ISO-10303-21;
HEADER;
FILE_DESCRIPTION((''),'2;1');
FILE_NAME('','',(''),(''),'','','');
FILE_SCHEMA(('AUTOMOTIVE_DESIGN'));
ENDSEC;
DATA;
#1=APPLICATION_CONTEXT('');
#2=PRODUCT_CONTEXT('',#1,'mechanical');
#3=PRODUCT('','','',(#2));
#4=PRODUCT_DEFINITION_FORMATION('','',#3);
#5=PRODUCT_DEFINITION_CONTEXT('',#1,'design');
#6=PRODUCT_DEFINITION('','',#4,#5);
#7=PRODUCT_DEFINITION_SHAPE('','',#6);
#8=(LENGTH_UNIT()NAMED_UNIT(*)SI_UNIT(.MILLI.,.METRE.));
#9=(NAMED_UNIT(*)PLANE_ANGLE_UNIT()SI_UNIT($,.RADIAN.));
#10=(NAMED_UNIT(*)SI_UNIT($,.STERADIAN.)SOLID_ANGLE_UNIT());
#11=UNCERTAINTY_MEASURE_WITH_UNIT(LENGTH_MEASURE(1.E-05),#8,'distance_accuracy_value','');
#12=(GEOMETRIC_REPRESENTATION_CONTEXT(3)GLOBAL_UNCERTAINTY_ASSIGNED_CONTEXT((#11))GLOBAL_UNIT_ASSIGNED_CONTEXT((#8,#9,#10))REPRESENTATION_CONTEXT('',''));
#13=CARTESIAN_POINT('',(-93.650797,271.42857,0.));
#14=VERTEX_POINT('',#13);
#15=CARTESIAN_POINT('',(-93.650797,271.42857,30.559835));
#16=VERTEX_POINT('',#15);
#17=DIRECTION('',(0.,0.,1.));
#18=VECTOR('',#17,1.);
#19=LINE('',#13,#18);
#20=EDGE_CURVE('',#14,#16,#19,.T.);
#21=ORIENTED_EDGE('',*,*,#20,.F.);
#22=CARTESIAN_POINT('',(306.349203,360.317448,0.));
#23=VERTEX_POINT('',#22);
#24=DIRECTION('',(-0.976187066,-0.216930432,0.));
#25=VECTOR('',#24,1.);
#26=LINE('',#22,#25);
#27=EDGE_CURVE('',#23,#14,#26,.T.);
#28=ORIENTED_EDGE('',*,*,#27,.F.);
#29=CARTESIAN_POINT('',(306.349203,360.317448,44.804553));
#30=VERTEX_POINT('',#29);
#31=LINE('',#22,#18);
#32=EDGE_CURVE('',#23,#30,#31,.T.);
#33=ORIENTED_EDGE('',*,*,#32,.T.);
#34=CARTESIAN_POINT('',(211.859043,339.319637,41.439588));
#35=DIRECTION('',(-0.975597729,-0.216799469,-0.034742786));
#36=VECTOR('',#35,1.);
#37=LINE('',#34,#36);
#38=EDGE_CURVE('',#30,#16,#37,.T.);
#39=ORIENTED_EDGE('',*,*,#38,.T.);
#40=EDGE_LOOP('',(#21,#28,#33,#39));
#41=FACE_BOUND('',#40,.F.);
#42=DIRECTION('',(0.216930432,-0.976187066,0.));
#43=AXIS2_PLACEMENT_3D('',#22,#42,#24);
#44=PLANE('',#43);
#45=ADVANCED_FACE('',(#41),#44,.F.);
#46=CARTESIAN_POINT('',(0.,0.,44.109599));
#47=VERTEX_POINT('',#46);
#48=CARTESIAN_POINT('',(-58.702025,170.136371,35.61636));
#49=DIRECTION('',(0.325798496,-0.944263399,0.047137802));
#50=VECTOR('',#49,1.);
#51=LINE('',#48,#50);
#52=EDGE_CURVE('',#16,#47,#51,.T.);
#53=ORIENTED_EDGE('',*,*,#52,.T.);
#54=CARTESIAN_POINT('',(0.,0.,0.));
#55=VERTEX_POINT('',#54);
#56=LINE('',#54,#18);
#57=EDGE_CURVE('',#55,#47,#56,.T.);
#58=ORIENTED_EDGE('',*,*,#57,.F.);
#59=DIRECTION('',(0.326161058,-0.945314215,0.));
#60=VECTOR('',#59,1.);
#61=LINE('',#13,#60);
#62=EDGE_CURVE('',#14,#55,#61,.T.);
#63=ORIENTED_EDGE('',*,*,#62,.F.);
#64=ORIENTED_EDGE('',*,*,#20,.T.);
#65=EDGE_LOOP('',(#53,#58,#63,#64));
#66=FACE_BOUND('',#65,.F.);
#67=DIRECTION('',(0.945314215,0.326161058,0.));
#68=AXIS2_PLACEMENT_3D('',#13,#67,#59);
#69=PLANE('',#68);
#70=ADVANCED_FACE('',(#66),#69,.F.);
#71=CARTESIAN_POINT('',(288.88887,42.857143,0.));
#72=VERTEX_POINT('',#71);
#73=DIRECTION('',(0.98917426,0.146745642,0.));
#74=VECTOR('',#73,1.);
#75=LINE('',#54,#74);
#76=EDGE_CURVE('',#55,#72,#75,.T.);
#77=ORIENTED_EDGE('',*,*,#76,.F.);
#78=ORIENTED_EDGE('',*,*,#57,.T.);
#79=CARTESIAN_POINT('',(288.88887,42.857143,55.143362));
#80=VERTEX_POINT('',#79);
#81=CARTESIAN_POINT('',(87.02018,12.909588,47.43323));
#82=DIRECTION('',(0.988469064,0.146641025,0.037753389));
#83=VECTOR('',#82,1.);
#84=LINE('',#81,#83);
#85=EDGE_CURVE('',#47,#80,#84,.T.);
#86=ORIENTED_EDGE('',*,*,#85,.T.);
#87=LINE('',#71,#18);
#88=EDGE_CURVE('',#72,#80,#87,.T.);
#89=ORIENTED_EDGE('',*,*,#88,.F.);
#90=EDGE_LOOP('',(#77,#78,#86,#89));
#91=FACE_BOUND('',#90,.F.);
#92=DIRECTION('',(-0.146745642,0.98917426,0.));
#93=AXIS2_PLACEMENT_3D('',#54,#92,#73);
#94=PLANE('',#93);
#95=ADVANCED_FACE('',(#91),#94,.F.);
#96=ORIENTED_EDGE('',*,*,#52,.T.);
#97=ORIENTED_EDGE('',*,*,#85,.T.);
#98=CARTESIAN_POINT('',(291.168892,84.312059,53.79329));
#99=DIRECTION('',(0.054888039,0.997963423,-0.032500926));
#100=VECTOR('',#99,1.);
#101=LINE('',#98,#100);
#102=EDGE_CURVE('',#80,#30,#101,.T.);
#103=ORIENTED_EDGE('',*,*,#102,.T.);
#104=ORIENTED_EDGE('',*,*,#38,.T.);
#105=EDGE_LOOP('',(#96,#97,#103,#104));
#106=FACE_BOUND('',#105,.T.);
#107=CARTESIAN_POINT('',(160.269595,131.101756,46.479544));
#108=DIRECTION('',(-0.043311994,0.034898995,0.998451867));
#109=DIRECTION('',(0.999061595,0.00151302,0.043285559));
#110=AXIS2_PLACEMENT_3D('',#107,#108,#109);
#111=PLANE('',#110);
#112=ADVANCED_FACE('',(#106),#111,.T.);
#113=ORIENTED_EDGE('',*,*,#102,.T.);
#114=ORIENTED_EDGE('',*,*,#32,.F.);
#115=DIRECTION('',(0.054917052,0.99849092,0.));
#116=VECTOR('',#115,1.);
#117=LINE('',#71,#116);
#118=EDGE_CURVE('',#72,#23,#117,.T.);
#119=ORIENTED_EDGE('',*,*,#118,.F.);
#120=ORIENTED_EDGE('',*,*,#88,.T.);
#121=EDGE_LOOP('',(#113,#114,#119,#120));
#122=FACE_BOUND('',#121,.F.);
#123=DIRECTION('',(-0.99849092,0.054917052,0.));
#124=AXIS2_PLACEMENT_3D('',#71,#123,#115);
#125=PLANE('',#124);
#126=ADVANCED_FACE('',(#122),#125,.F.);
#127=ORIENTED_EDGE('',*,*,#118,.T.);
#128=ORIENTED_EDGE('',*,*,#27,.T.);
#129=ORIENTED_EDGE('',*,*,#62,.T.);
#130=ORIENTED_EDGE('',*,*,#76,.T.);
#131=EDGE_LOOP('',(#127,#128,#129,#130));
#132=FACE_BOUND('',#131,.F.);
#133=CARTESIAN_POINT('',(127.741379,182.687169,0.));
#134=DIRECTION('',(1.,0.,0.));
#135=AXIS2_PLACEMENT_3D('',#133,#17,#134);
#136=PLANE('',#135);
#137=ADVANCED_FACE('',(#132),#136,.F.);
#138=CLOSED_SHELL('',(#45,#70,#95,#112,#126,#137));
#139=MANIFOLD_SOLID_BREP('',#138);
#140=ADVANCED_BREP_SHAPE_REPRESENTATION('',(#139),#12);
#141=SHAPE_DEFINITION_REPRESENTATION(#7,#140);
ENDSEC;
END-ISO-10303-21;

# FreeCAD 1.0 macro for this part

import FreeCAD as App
import Part
import Sketcher

V = App.Vector


def add_polygon(sketch, points):
    """Adds a closed chain of lines whose ends are joined by coincident constraints."""
    first, n = sketch.GeometryCount, len(points)
    for a, b in zip(points, points[1:] + points[:1]):
        sketch.addGeometry(Part.LineSegment(App.Vector(*a, 0), App.Vector(*b, 0)), False)
    for i in range(n):
        sketch.addConstraint(Sketcher.Constraint("Coincident", first + i, 2, first + (i + 1) % n, 1))

doc = App.newDocument("Part")
body = doc.addObject("PartDesign::Body", "Body")

# Sketch on XY plane
sketch1 = body.newObject("Sketcher::SketchObject", "Sketch")
sketch1.AttachmentSupport = (doc.getObject("XY_Plane"), [""])
sketch1.MapMode = "FlatFace"
add_polygon(sketch1, [(-93.650797, 271.42857), (0, 0), (288.88887, 42.857143), (306.349203, 360.317448)])  # lines 0-3
sketch1.addConstraint([
    Sketcher.Constraint("Coincident", 0, 2, -1, 1),
    Sketcher.Constraint("DistanceX", 3, 2, 2, 2, 400.0),
    Sketcher.Constraint("Distance", 0, 287.130528),
    Sketcher.Constraint("Distance", 3, 409.757529),
    Sketcher.Constraint("DistanceX", -1, 1, 1, 2, 288.88887),
    Sketcher.Constraint("DistanceY", -1, 1, 2, 2, 360.317448),
    Sketcher.Constraint("Distance", 1, 292.050533),
])
pad1 = body.newObject("PartDesign::Pad", "Pad")
pad1.Profile = sketch1
pad1.Length = 60

# Sketch on an angled plane
sketch2 = body.newObject("Sketcher::SketchObject", "Sketch001")
sketch2.Placement = App.Placement(V(-1.90751, 1.53702, 43.973129), App.Rotation(V(0.999061595, 0.00151302, 0.043285559), V(-0.000000055, 0.999389699, -0.034931778), V(-0.043311994, 0.034898995, 0.998451867), "ZXY"))
add_polygon(sketch2, [(-107.941702, 407.368481), (-107.941702, -148.572281), (432.600588, -148.572281), (432.600588, 407.368481)])  # lines 0-3
sketch2.addConstraint([
    Sketcher.Constraint("Vertical", 0),
    Sketcher.Constraint("Horizontal", 1),
    Sketcher.Constraint("Vertical", 2),
    Sketcher.Constraint("Horizontal", 3),
    Sketcher.Constraint("DistanceX", 1, 1, 1, 2, 540.54229),
    Sketcher.Constraint("DistanceY", 0, 2, 0, 1, 555.940761),
    Sketcher.Constraint("DistanceX", 0, 2, -1, 1, 107.941702),
    Sketcher.Constraint("DistanceY", 0, 2, -1, 1, 148.572281),
])
pocket1 = body.newObject("PartDesign::Pocket", "Pocket")
pocket1.Profile = sketch2
pocket1.Length = 60
pocket1.Reversed = True

doc.recompute()
